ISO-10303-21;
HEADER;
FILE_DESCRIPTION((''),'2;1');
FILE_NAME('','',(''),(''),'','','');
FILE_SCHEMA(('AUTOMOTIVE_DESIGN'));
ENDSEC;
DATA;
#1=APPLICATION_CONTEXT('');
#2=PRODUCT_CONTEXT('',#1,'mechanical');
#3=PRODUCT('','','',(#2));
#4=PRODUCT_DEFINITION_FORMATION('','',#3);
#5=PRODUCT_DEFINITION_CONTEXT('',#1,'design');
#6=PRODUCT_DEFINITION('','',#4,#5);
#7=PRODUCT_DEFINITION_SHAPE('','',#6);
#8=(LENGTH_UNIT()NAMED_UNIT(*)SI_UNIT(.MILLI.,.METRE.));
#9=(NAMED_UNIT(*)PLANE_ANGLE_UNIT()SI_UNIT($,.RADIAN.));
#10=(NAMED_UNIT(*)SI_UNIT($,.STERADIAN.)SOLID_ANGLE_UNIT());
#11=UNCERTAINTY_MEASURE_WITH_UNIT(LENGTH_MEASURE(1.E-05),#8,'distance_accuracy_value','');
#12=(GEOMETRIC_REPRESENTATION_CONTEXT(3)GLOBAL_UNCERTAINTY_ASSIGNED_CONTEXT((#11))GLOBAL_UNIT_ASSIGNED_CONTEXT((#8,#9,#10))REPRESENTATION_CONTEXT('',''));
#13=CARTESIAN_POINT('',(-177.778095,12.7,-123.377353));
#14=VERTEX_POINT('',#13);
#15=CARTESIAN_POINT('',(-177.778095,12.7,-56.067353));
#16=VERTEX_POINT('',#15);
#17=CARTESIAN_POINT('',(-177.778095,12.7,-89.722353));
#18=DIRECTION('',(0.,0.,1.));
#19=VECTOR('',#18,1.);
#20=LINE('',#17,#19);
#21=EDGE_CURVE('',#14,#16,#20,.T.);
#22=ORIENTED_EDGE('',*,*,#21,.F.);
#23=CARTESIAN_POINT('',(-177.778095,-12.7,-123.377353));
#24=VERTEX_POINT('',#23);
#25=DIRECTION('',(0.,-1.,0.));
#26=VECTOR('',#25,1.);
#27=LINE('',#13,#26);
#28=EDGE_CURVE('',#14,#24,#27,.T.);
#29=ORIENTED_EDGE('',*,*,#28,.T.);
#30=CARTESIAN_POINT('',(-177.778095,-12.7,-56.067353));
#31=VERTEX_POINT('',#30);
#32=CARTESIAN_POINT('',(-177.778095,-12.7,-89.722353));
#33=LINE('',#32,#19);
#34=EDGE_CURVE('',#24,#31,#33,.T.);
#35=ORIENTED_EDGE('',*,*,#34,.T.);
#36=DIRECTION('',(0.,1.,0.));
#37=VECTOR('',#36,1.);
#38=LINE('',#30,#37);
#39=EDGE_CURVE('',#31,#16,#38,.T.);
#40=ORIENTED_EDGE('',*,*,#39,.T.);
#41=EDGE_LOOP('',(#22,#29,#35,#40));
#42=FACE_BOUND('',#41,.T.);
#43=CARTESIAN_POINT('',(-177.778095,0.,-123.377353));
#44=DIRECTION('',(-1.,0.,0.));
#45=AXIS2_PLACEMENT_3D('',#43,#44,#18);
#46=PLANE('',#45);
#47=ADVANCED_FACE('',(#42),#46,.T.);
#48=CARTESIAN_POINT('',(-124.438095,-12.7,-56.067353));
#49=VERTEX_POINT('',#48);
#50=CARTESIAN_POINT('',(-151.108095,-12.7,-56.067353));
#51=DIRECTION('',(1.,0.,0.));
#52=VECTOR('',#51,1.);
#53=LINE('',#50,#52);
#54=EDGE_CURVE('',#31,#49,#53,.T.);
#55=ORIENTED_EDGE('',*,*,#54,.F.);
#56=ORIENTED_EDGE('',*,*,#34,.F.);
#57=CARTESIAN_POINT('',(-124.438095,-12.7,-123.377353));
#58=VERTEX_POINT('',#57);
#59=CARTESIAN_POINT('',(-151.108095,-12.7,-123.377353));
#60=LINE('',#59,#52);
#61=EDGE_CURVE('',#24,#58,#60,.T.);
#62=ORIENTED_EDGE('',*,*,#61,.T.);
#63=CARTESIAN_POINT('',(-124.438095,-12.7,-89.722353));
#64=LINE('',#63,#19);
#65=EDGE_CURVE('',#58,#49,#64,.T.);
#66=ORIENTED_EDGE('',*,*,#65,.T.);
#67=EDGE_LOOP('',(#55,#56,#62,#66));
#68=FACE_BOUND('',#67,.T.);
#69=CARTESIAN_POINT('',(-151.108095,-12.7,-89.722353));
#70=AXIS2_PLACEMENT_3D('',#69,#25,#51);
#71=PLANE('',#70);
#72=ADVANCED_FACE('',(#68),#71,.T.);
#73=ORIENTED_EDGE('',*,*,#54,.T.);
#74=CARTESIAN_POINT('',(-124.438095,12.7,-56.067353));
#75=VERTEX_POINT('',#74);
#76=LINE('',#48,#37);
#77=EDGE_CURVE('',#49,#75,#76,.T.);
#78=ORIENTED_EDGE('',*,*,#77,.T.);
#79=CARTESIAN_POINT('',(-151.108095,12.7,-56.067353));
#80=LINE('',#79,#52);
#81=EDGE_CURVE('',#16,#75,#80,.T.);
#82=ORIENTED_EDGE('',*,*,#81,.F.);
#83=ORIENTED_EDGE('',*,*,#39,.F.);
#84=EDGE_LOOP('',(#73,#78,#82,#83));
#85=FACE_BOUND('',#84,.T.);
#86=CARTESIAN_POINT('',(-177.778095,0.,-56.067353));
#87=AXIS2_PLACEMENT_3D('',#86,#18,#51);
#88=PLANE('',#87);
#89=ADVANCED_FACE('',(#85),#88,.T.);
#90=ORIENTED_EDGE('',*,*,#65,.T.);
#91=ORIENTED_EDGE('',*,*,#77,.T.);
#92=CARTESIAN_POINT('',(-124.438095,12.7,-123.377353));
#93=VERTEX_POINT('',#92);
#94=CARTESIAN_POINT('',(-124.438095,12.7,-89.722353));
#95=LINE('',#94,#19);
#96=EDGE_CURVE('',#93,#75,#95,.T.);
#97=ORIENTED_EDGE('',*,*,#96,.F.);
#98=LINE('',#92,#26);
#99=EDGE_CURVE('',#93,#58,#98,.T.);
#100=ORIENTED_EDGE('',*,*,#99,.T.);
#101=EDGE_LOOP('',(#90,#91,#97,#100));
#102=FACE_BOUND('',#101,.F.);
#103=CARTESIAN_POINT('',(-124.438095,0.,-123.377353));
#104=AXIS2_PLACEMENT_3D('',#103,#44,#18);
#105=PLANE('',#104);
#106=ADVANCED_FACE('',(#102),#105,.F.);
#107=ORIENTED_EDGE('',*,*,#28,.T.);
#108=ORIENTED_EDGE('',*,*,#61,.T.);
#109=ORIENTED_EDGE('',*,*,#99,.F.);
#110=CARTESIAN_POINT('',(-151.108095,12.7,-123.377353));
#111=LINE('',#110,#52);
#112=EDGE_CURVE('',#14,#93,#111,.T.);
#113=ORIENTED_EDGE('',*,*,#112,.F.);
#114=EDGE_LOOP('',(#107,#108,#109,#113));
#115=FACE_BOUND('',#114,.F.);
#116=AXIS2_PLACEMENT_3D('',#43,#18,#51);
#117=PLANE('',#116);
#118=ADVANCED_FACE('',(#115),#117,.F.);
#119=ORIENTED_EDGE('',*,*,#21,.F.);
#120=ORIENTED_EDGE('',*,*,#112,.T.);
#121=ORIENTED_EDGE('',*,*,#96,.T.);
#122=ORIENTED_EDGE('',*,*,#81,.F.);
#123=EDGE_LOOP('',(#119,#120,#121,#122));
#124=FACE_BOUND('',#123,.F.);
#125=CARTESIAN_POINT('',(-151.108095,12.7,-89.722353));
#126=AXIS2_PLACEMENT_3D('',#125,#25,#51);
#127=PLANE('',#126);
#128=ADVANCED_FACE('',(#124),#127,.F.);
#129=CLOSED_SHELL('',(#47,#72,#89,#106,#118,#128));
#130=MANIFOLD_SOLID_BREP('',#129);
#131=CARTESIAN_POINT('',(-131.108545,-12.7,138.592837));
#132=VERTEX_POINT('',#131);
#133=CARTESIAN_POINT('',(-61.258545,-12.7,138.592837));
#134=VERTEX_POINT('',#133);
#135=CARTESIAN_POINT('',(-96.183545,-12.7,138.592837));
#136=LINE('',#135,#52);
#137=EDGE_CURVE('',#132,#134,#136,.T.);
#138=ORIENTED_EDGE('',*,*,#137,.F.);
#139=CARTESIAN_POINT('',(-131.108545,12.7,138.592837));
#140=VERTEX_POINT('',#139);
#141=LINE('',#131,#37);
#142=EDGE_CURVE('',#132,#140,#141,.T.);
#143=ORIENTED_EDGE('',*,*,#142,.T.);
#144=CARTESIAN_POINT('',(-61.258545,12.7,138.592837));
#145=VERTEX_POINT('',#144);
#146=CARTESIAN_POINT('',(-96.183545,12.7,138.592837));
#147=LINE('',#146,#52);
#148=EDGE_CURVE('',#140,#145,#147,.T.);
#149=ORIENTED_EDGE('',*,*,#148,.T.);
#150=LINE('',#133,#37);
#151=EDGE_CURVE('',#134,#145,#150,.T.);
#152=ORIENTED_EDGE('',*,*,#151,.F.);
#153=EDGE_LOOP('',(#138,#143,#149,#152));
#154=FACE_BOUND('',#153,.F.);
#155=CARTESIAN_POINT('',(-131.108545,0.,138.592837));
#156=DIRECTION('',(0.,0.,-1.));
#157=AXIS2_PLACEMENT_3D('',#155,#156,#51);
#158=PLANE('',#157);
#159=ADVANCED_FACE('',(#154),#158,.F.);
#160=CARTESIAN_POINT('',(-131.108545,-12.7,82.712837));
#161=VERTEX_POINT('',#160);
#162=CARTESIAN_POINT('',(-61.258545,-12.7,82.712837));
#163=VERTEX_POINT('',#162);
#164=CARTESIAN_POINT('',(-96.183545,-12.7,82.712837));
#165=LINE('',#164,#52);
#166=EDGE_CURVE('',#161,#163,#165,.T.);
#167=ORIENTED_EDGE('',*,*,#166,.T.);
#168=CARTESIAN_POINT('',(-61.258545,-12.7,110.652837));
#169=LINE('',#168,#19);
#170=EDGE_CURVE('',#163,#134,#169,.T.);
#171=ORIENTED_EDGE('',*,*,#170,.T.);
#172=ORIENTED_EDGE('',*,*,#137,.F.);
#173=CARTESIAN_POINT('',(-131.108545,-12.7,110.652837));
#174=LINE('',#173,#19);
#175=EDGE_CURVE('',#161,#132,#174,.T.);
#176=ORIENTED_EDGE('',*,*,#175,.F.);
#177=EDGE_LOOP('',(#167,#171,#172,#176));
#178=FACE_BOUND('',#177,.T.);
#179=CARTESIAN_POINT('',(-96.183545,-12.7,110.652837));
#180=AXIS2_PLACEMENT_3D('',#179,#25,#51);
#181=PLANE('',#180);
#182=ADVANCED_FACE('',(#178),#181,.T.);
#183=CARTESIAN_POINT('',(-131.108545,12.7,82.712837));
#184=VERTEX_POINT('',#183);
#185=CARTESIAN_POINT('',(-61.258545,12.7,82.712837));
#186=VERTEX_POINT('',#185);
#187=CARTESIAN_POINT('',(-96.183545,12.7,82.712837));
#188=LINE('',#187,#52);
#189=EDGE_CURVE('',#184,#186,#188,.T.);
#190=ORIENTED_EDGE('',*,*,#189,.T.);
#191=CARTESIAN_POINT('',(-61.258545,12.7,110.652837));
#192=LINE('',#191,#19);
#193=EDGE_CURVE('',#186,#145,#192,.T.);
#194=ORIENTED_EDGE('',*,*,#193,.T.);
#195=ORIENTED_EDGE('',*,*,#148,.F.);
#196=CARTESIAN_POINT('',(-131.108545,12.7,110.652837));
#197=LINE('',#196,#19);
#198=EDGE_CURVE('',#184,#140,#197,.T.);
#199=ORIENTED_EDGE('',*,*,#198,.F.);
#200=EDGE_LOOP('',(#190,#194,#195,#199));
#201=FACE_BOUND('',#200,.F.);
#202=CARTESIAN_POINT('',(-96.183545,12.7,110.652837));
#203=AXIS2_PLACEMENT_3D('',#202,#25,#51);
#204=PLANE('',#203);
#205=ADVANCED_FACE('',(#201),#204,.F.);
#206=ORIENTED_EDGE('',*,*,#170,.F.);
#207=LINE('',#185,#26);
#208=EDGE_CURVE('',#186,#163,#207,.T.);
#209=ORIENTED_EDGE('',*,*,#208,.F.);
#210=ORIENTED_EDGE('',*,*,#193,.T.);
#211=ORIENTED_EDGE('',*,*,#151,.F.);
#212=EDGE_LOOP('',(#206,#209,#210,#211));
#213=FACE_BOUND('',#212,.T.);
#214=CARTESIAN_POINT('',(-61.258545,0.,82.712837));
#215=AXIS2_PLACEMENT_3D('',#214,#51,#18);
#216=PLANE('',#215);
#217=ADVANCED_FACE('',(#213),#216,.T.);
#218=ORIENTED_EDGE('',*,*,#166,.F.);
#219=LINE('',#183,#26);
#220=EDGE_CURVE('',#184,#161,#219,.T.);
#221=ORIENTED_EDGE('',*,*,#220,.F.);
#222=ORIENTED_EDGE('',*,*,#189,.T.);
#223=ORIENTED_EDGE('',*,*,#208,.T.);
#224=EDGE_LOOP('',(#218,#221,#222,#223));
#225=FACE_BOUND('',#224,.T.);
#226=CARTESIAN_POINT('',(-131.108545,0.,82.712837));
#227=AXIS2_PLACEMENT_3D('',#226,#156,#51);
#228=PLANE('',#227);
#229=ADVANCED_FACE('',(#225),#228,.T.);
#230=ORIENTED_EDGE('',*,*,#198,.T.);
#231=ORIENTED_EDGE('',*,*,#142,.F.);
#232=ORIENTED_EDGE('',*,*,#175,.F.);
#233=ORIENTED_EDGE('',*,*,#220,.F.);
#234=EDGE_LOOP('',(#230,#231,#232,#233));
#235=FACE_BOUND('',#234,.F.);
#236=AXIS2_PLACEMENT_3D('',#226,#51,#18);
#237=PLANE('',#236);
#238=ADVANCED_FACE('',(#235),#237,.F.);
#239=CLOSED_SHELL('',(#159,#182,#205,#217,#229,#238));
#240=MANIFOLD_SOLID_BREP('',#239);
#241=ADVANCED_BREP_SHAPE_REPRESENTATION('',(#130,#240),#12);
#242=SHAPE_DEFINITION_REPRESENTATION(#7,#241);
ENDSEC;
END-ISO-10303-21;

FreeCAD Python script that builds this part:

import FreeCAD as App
import Part
import Sketcher
from FreeCAD import Vector
Q = App.Units.Quantity


def add_polygon(sketch, points):
    """Adds a closed chain of lines whose ends are joined by coincident constraints."""
    first, n = sketch.GeometryCount, len(points)
    for a, b in zip(points, points[1:] + points[:1]):
        sketch.addGeometry(Part.LineSegment(App.Vector(*a, 0), App.Vector(*b, 0)), False)
    for i in range(n):
        sketch.addConstraint(Sketcher.Constraint("Coincident", first + i, 2, first + (i + 1) % n, 1))

doc = App.newDocument("Part")
body = doc.addObject("PartDesign::Body", "Body")
body.AllowCompound = True

# Sketch on XZ plane
sketch1 = body.newObject("Sketcher::SketchObject", "Sketch")
sketch1.AttachmentSupport = (doc.getObject("XZ_Plane"), [""])
sketch1.MapMode = "FlatFace"
add_polygon(sketch1, [(-178, -56), (-178, -123), (-124, -123), (-124, -56)])  # lines 0-3
add_polygon(sketch1, [(-131, 139), (-131, 83), (-61, 83), (-61, 139)])  # lines 4-7
sketch1.addConstraint([
    Sketcher.Constraint("Vertical", 0),
    Sketcher.Constraint("Horizontal", 1),
    Sketcher.Constraint("Vertical", 2),
    Sketcher.Constraint("Horizontal", 3),
    Sketcher.Constraint("Vertical", 4),
    Sketcher.Constraint("Horizontal", 5),
    Sketcher.Constraint("Vertical", 6),
    Sketcher.Constraint("Horizontal", 7),
    Sketcher.Constraint("DistanceX", 1, 1, 1, 2, Q("2.1 in")),
    Sketcher.Constraint("DistanceY", 4, 2, 4, 1, Q("2.2 in")),
    Sketcher.Constraint("DistanceX", 5, 1, 5, 2, Q("2.75 in")),
    Sketcher.Constraint("DistanceY", 0, 2, 0, 1, Q("2.65 in")),
    Sketcher.Constraint("DistanceX", 4, 2, 2, 2, Q("6.67045 mm")),
    Sketcher.Constraint("DistanceY", 2, 2, 4, 2, Q("138.78019 mm")),
    Sketcher.Constraint("DistanceX", 0, 2, -1, 1, Q("177.778095 mm")),
    Sketcher.Constraint("DistanceY", 0, 2, -1, 1, Q("123.377353 mm")),
])
pad1 = body.newObject("PartDesign::Pad", "Pad")
pad1.Profile = sketch1
pad1.Length = Q("1 in")
pad1.Midplane = True

doc.recompute()
